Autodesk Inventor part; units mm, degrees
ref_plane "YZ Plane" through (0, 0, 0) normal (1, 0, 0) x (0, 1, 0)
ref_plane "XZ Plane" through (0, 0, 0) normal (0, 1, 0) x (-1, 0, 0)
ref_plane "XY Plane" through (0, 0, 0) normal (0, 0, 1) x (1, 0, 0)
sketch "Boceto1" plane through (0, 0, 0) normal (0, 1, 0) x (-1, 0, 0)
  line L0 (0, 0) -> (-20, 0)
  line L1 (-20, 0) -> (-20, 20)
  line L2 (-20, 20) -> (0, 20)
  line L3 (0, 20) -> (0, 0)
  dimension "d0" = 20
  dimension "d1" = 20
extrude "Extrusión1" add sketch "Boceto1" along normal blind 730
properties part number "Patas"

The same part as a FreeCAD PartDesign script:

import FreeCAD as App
import Part
import Sketcher


def add_polygon(sketch, points):
    """Adds a closed chain of lines whose ends are joined by coincident constraints."""
    first, n = sketch.GeometryCount, len(points)
    for a, b in zip(points, points[1:] + points[:1]):
        sketch.addGeometry(Part.LineSegment(App.Vector(*a, 0), App.Vector(*b, 0)), False)
    for i in range(n):
        sketch.addConstraint(Sketcher.Constraint("Coincident", first + i, 2, first + (i + 1) % n, 1))

doc = App.newDocument("Part")
body = doc.addObject("PartDesign::Body", "Body")

# Sketch on XZ plane
sketch1 = body.newObject("Sketcher::SketchObject", "Sketch")
sketch1.AttachmentSupport = (doc.getObject("XZ_Plane"), [""])
sketch1.MapMode = "FlatFace"
add_polygon(sketch1, [(20, 0), (0, 0), (0, 20), (20, 20)])  # lines 0-3
sketch1.addConstraint(Sketcher.Constraint("Horizontal", 0))
sketch1.addConstraint(Sketcher.Constraint("Vertical", 1))
sketch1.addConstraint(Sketcher.Constraint("Horizontal", 2))
sketch1.addConstraint(Sketcher.Constraint("Vertical", 3))
sketch1.addConstraint(Sketcher.Constraint("Coincident", 0, 2, -1, 1))
sketch1.addConstraint(Sketcher.Constraint("Equal", 2, 1))
sketch1.addConstraint(Sketcher.Constraint("DistanceX", 0, 2, 0, 1, 20.0))
pad1 = body.newObject("PartDesign::Pad", "Pad")
pad1.Profile = sketch1
pad1.Length = 730
pad1.Reversed = True

doc.recompute()
